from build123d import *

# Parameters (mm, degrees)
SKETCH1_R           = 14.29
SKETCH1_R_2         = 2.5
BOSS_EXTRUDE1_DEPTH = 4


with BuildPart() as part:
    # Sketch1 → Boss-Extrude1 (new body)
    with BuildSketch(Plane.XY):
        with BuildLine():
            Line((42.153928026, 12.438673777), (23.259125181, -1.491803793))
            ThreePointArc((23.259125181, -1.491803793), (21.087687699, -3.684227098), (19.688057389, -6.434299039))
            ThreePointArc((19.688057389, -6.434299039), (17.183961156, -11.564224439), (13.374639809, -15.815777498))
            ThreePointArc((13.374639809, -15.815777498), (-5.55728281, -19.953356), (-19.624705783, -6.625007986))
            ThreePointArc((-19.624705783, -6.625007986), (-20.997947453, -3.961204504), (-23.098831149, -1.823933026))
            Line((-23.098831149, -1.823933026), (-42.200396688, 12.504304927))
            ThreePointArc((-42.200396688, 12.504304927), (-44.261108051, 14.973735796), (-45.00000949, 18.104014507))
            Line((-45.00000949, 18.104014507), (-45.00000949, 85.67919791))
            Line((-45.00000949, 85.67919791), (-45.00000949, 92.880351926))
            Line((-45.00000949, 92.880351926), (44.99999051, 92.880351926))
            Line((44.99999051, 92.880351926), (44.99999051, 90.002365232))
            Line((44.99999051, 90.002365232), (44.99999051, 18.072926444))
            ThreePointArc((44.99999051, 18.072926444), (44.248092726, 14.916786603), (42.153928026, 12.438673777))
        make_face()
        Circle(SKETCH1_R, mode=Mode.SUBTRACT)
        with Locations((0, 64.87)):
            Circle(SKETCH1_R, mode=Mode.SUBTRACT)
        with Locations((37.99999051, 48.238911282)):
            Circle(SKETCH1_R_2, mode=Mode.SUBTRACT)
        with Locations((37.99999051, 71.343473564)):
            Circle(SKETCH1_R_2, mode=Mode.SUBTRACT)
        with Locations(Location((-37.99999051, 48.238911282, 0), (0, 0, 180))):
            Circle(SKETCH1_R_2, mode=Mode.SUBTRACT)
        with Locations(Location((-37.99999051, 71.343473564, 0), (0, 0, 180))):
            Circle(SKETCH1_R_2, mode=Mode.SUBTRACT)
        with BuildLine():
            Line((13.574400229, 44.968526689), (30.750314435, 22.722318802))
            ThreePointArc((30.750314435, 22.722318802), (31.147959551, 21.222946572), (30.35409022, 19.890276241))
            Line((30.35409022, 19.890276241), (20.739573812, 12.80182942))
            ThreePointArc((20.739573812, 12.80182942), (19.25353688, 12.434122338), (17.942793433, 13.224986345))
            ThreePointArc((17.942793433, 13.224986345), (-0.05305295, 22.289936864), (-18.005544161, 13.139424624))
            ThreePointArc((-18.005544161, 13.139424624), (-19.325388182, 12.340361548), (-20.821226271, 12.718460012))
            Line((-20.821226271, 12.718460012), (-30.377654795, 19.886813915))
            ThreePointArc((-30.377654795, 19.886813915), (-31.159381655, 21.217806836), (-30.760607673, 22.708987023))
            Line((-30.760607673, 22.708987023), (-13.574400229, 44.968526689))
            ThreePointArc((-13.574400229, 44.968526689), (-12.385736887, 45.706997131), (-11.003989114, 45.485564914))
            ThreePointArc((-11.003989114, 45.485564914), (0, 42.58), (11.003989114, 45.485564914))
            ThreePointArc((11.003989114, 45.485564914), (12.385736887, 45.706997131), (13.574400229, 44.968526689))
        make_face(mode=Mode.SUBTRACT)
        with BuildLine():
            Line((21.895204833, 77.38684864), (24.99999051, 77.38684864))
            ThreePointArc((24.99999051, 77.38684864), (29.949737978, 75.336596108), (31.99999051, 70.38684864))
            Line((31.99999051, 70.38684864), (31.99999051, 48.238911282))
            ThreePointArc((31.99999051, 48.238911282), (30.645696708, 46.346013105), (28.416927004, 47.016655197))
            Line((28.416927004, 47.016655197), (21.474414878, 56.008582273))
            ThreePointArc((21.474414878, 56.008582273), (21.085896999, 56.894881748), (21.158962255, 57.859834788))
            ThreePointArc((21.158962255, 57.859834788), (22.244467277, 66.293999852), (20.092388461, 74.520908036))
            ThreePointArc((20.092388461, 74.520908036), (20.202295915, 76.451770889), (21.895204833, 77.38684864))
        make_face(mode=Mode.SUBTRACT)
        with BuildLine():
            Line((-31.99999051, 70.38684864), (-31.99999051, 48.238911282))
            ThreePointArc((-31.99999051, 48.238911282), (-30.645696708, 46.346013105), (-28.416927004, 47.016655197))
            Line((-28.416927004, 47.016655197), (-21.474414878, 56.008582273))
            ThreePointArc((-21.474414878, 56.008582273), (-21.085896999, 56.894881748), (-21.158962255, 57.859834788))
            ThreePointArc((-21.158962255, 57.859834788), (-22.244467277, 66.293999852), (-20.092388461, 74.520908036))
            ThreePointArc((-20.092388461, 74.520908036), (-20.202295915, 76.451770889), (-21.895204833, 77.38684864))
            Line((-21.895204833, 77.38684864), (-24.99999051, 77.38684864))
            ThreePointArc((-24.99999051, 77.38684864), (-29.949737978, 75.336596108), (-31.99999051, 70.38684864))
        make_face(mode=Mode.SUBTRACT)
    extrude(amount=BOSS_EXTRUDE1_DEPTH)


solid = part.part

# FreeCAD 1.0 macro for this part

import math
import FreeCAD as App
import Part
import Sketcher
from FreeCAD import Vector
Q = App.Units.Quantity

doc = App.newDocument("Part")
body = doc.addObject("PartDesign::Body", "Body")

# Sketch on XY plane
sketch1 = doc.addObject("Sketcher::SketchObject", "Sketch")
body.addObject(sketch1)
sketch1.AttachmentSupport = (doc.XY_Plane, [""])
sketch1.MapMode = "FlatFace"
sketch1.addGeometry(Part.LineSegment(Vector(23.259125, -1.491804, 0), Vector(42.153928, 12.438674, 0)), False)
sketch1.addGeometry(Part.ArcOfCircle(Part.Circle(Vector(37.999991, 18.072926, 0), Vector(0, 0, 1), 7), math.radians(-53.599946), math.radians(0)), False)
sketch1.addGeometry(Part.LineSegment(Vector(44.999991, 18.072926, 0), Vector(44.999991, 92.880352, 0)), False)
sketch1.addGeometry(Part.LineSegment(Vector(44.999991, 92.880352, 0), Vector(-45.000009, 92.880352, 0)), False)
sketch1.addGeometry(Part.LineSegment(Vector(-45.000009, 92.880352, 0), Vector(-45.000009, 18.104015, 0)), False)
sketch1.addGeometry(Part.ArcOfCircle(Part.Circle(Vector(-38.000009, 18.104015, 0), Vector(0, 0, 1), 7), math.radians(180), math.radians(233.126141)), False)
sketch1.addGeometry(Part.LineSegment(Vector(-42.200397, 12.504305, 0), Vector(-23.098831, -1.823933, 0)), False)
sketch1.addGeometry(Part.ArcOfCircle(Part.Circle(Vector(-29.099384, -9.823518, 0), Vector(0, 0, 1), 10), math.radians(18.653915), math.radians(53.126141)), False)
sketch1.addGeometry(Part.ArcOfCircle(Part.Circle(Vector(0, 0, 0), Vector(0, 0, 1), 20.712793), math.radians(-161.346085), math.radians(-49.780411)), False)
sketch1.addGeometry(Part.ArcOfCircle(Part.Circle(Vector(0, 0, 0), Vector(0, 0, 1), 20.712793), math.radians(-49.780411), math.radians(-18.098028)), False)
sketch1.addGeometry(Part.ArcOfCircle(Part.Circle(Vector(29.193322, -9.540736, 0), Vector(0, 0, 1), 10), math.radians(126.400054), math.radians(161.901972)), False)
sketch1.addGeometry(Part.Circle(Vector(0, 0, 0), Vector(0, 0, 1), 14.29), False)
sketch1.addGeometry(Part.LineSegment(Vector(13.5744, 44.968527, 0), Vector(30.750314, 22.722319, 0)), False)
sketch1.addGeometry(Part.ArcOfCircle(Part.Circle(Vector(29.167251, 21.500063, 0), Vector(0, 0, 1), 2), math.radians(-53.599946), math.radians(37.671113)), False)
sketch1.addGeometry(Part.LineSegment(Vector(30.35409, 19.890276, 0), Vector(20.739574, 12.801829, 0)), False)
sketch1.addGeometry(Part.ArcOfCircle(Part.Circle(Vector(19.552735, 14.411616, 0), Vector(0, 0, 1), 2), math.radians(-143.607411), math.radians(-53.599946)), False)
sketch1.addGeometry(Part.ArcOfCircle(Part.Circle(Vector(0, 0, 0), Vector(0, 0, 1), 22.29), math.radians(36.392589), math.radians(143.880153)), False)
sketch1.addGeometry(Part.ArcOfCircle(Part.Circle(Vector(-19.621116, 14.318377, 0), Vector(0, 0, 1), 2), math.radians(-126.873859), math.radians(-36.119847)), False)
sketch1.addGeometry(Part.LineSegment(Vector(-20.821226, 12.71846, 0), Vector(-30.377655, 19.886814, 0)), False)
sketch1.addGeometry(Part.ArcOfCircle(Part.Circle(Vector(-29.177544, 21.486731, 0), Vector(0, 0, 1), 2), math.radians(142.328887), math.radians(233.126141)), False)
sketch1.addGeometry(Part.LineSegment(Vector(-30.760608, 22.708987, 0), Vector(-13.5744, 44.968527, 0)), False)
sketch1.addGeometry(Part.ArcOfCircle(Part.Circle(Vector(-11.991337, 43.746271, 0), Vector(0, 0, 1), 2), math.radians(60.417662), math.radians(142.328888)), False)
sketch1.addGeometry(Part.ArcOfCircle(Part.Circle(Vector(0, 64.87, 0), Vector(0, 0, 1), 22.29), math.radians(-119.582337), math.radians(-60.417663)), False)
sketch1.addGeometry(Part.ArcOfCircle(Part.Circle(Vector(11.991337, 43.746271, 0), Vector(0, 0, 1), 2), math.radians(37.671112), math.radians(119.582338)), False)
sketch1.addGeometry(Part.Circle(Vector(37.999991, 48.238911, 0), Vector(0, 0, 1), 2.5), False)
sketch1.addGeometry(Part.LineSegment(Vector(21.895205, 77.386849, 0), Vector(24.999991, 77.386849, 0)), False)
sketch1.addGeometry(Part.ArcOfCircle(Part.Circle(Vector(24.999991, 70.386849, 0), Vector(0, 0, 1), 7), math.radians(0), math.radians(90)), False)
sketch1.addGeometry(Part.LineSegment(Vector(31.999991, 70.386849, 0), Vector(31.999991, 48.238911, 0)), False)
sketch1.addGeometry(Part.ArcOfCircle(Part.Circle(Vector(29.999991, 48.238911, 0), Vector(0, 0, 1), 2), math.radians(-142.328887), math.radians(0)), False)
sketch1.addGeometry(Part.LineSegment(Vector(28.416927, 47.016655, 0), Vector(21.474415, 56.008582, 0)), False)
sketch1.addGeometry(Part.ArcOfCircle(Part.Circle(Vector(23.057478, 57.230838, 0), Vector(0, 0, 1), 2), math.radians(161.669476), math.radians(217.671113)), False)
sketch1.addGeometry(Part.ArcOfCircle(Part.Circle(Vector(0, 64.87, 0), Vector(0, 0, 1), 22.29), math.radians(-18.330524), math.radians(25.656211)), False)
sketch1.addGeometry(Part.ArcOfCircle(Part.Circle(Vector(21.895205, 75.386849, 0), Vector(0, 0, 1), 2), math.radians(90), math.radians(205.656211)), False)
sketch1.addGeometry(Part.Circle(Vector(37.999991, 71.343474, 0), Vector(0, 0, 1), 2.5), False)
sketch1.addGeometry(Part.Circle(Vector(0, 64.87, 0), Vector(0, 0, 1), 14.29), False)
sketch1.addGeometry(Part.Circle(Vector(-37.999991, 48.238911, 0), Vector(0, 0, 1), 2.5), False)
sketch1.addGeometry(Part.ArcOfCircle(Part.Circle(Vector(-24.999991, 70.386849, 0), Vector(0, 0, 1), 7), math.radians(90), math.radians(180)), False)
sketch1.addGeometry(Part.LineSegment(Vector(-24.999991, 77.386849, 0), Vector(-21.895205, 77.386849, 0)), False)
sketch1.addGeometry(Part.ArcOfCircle(Part.Circle(Vector(-21.895205, 75.386849, 0), Vector(0, 0, 1), 2), math.radians(-25.656211), math.radians(90)), False)
sketch1.addGeometry(Part.ArcOfCircle(Part.Circle(Vector(0, 64.87, 0), Vector(0, 0, 1), 22.29), math.radians(154.343789), math.radians(198.330524)), False)
sketch1.addGeometry(Part.ArcOfCircle(Part.Circle(Vector(-23.057478, 57.230838, 0), Vector(0, 0, 1), 2), math.radians(-37.671113), math.radians(18.330524)), False)
sketch1.addGeometry(Part.LineSegment(Vector(-21.474415, 56.008582, 0), Vector(-28.416927, 47.016655, 0)), False)
sketch1.addGeometry(Part.ArcOfCircle(Part.Circle(Vector(-29.999991, 48.238911, 0), Vector(0, 0, 1), 2), math.radians(180), math.radians(322.328887)), False)
sketch1.addGeometry(Part.LineSegment(Vector(-31.999991, 48.238911, 0), Vector(-31.999991, 70.386849, 0)), False)
sketch1.addGeometry(Part.Circle(Vector(-37.999991, 71.343474, 0), Vector(0, 0, 1), 2.5), False)
sketch1.addConstraint(Sketcher.Constraint("Coincident", 0, 2, 1, 1))
sketch1.addConstraint(Sketcher.Constraint("Coincident", 1, 2, 2, 1))
sketch1.addConstraint(Sketcher.Constraint("Coincident", 2, 2, 3, 1))
sketch1.addConstraint(Sketcher.Constraint("Coincident", 3, 2, 4, 1))
sketch1.addConstraint(Sketcher.Constraint("Coincident", 4, 2, 5, 1))
sketch1.addConstraint(Sketcher.Constraint("Coincident", 5, 2, 6, 1))
sketch1.addConstraint(Sketcher.Constraint("Coincident", 6, 2, 7, 2))
sketch1.addConstraint(Sketcher.Constraint("Coincident", 7, 1, 8, 1))
sketch1.addConstraint(Sketcher.Constraint("Coincident", 8, 2, 9, 1))
sketch1.addConstraint(Sketcher.Constraint("Coincident", 9, 2, 10, 2))
sketch1.addConstraint(Sketcher.Constraint("Coincident", 10, 1, 0, 1))
sketch1.addConstraint(Sketcher.Constraint("Coincident", 12, 2, 13, 2))
sketch1.addConstraint(Sketcher.Constraint("Coincident", 13, 1, 14, 1))
sketch1.addConstraint(Sketcher.Constraint("Coincident", 14, 2, 15, 2))
sketch1.addConstraint(Sketcher.Constraint("Coincident", 15, 1, 16, 1))
sketch1.addConstraint(Sketcher.Constraint("Coincident", 16, 2, 17, 2))
sketch1.addConstraint(Sketcher.Constraint("Coincident", 17, 1, 18, 1))
sketch1.addConstraint(Sketcher.Constraint("Coincident", 18, 2, 19, 2))
sketch1.addConstraint(Sketcher.Constraint("Coincident", 19, 1, 20, 1))
sketch1.addConstraint(Sketcher.Constraint("Coincident", 20, 2, 21, 2))
sketch1.addConstraint(Sketcher.Constraint("Coincident", 21, 1, 22, 1))
sketch1.addConstraint(Sketcher.Constraint("Coincident", 22, 2, 23, 2))
sketch1.addConstraint(Sketcher.Constraint("Coincident", 23, 1, 12, 1))
sketch1.addConstraint(Sketcher.Constraint("Coincident", 25, 2, 26, 2))
sketch1.addConstraint(Sketcher.Constraint("Coincident", 26, 1, 27, 1))
sketch1.addConstraint(Sketcher.Constraint("Coincident", 27, 2, 28, 2))
sketch1.addConstraint(Sketcher.Constraint("Coincident", 28, 1, 29, 1))
sketch1.addConstraint(Sketcher.Constraint("Coincident", 29, 2, 30, 2))
sketch1.addConstraint(Sketcher.Constraint("Coincident", 30, 1, 31, 1))
sketch1.addConstraint(Sketcher.Constraint("Coincident", 31, 2, 32, 2))
sketch1.addConstraint(Sketcher.Constraint("Coincident", 32, 1, 25, 1))
sketch1.addConstraint(Sketcher.Constraint("Coincident", 36, 1, 37, 1))
sketch1.addConstraint(Sketcher.Constraint("Coincident", 37, 2, 38, 2))
sketch1.addConstraint(Sketcher.Constraint("Coincident", 38, 1, 39, 1))
sketch1.addConstraint(Sketcher.Constraint("Coincident", 39, 2, 40, 2))
sketch1.addConstraint(Sketcher.Constraint("Coincident", 40, 1, 41, 1))
sketch1.addConstraint(Sketcher.Constraint("Coincident", 41, 2, 42, 2))
sketch1.addConstraint(Sketcher.Constraint("Coincident", 42, 1, 43, 1))
sketch1.addConstraint(Sketcher.Constraint("Coincident", 43, 2, 36, 2))
sketch1.addConstraint(Sketcher.Constraint("Vertical", 2))
sketch1.addConstraint(Sketcher.Constraint("Horizontal", 3))
sketch1.addConstraint(Sketcher.Constraint("Vertical", 4))
sketch1.addConstraint(Sketcher.Constraint("Horizontal", 25))
sketch1.addConstraint(Sketcher.Constraint("Vertical", 27))
sketch1.addConstraint(Sketcher.Constraint("Horizontal", 37))
sketch1.addConstraint(Sketcher.Constraint("Vertical", 43))
sketch1.addConstraint(Sketcher.Constraint("Coincident", 8, 3, -1, 1))
sketch1.addConstraint(Sketcher.Constraint("Coincident", 9, 3, -1, 1))
sketch1.addConstraint(Sketcher.Constraint("Coincident", 11, 3, -1, 1))
sketch1.addConstraint(Sketcher.Constraint("Coincident", 16, 3, -1, 1))
sketch1.addConstraint(Sketcher.Constraint("Coincident", 31, 3, 22, 3))
sketch1.addConstraint(Sketcher.Constraint("Coincident", 34, 3, 22, 3))
sketch1.addConstraint(Sketcher.Constraint("Coincident", 39, 3, 22, 3))
sketch1.addConstraint(Sketcher.Constraint("PointOnObject", 22, 3, -2))
sketch1.addConstraint(Sketcher.Constraint("Diameter", 24, Q("5 mm")))
sketch1.addConstraint(Sketcher.Constraint("Diameter", 33, Q("5 mm")))
sketch1.addConstraint(Sketcher.Constraint("Diameter", 35, Q("5 mm")))
sketch1.addConstraint(Sketcher.Constraint("Diameter", 44, Q("5 mm")))
sketch1.addConstraint(Sketcher.Constraint("Radius", 1, Q("7 mm")))
sketch1.addConstraint(Sketcher.Constraint("Radius", 5, Q("7 mm")))
sketch1.addConstraint(Sketcher.Constraint("Radius", 7, Q("10 mm")))
sketch1.addConstraint(Sketcher.Constraint("Radius", 10, Q("10 mm")))
sketch1.addConstraint(Sketcher.Constraint("Radius", 13, Q("2 mm")))
sketch1.addConstraint(Sketcher.Constraint("Radius", 15, Q("2 mm")))
sketch1.addConstraint(Sketcher.Constraint("Radius", 17, Q("2 mm")))
sketch1.addConstraint(Sketcher.Constraint("Radius", 19, Q("2 mm")))
sketch1.addConstraint(Sketcher.Constraint("Radius", 21, Q("2 mm")))
sketch1.addConstraint(Sketcher.Constraint("Radius", 23, Q("2 mm")))
sketch1.addConstraint(Sketcher.Constraint("Radius", 26, Q("7 mm")))
sketch1.addConstraint(Sketcher.Constraint("Radius", 28, Q("2 mm")))
sketch1.addConstraint(Sketcher.Constraint("Radius", 30, Q("2 mm")))
sketch1.addConstraint(Sketcher.Constraint("Radius", 32, Q("2 mm")))
sketch1.addConstraint(Sketcher.Constraint("Radius", 36, Q("7 mm")))
sketch1.addConstraint(Sketcher.Constraint("Radius", 38, Q("2 mm")))
sketch1.addConstraint(Sketcher.Constraint("Radius", 40, Q("2 mm")))
sketch1.addConstraint(Sketcher.Constraint("Radius", 42, Q("2 mm")))
sketch1.addConstraint(Sketcher.Constraint("Diameter", 11, Q("28.58 mm")))
sketch1.addConstraint(Sketcher.Constraint("Diameter", 34, Q("28.58 mm")))
sketch1.addConstraint(Sketcher.Constraint("DistanceX", 3, 2, 3, 1, Q("90 mm")))
sketch1.addConstraint(Sketcher.Constraint("Radius", 16, Q("22.29 mm")))
sketch1.addConstraint(Sketcher.Constraint("Radius", 22, Q("22.29 mm")))
sketch1.addConstraint(Sketcher.Constraint("Radius", 31, Q("22.29 mm")))
sketch1.addConstraint(Sketcher.Constraint("Radius", 39, Q("22.29 mm")))
sketch1.addConstraint(Sketcher.Constraint("DistanceY", -1, 1, 22, 3, Q("64.87 mm")))
sketch1.addConstraint(Sketcher.Constraint("Radius", 8, Q("20.712793 mm")))
sketch1.addConstraint(Sketcher.Constraint("DistanceY", 9, 2, -1, 1, Q("6.434299 mm")))
sketch1.addConstraint(Sketcher.Constraint("DistanceX", 20, 2, -1, 1, Q("13.5744 mm")))
sketch1.addConstraint(Sketcher.Constraint("DistanceX", -1, 1, 23, 1, Q("13.5744 mm")))
sketch1.addConstraint(Sketcher.Constraint("Distance", 0, Q("23.474918 mm")))
sketch1.addConstraint(Sketcher.Constraint("Distance", 29, Q("11.36016 mm")))
sketch1.addConstraint(Sketcher.Constraint("Distance", 41, Q("11.36016 mm")))
sketch1.addConstraint(Sketcher.Constraint("DistanceX", 25, 1, 25, 2, Q("3.104786 mm")))
sketch1.addConstraint(Sketcher.Constraint("DistanceX", 37, 1, 37, 2, Q("3.104786 mm")))
sketch1.addConstraint(Sketcher.Constraint("DistanceY", 2, 1, 2, 2, Q("74.807425 mm")))
sketch1.addConstraint(Sketcher.Constraint("DistanceY", 4, 2, 4, 1, Q("74.776337 mm")))
sketch1.addConstraint(Sketcher.Constraint("DistanceY", 27, 2, 27, 1, Q("22.147937 mm")))
sketch1.addConstraint(Sketcher.Constraint("DistanceY", 43, 1, 43, 2, Q("22.147937 mm")))
sketch1.addConstraint(Sketcher.Constraint("DistanceX", -1, 1, 1, 3, Q("37.999991 mm")))
sketch1.addConstraint(Sketcher.Constraint("DistanceY", 7, 3, -1, 1, Q("9.823518 mm")))
sketch1.addConstraint(Sketcher.Constraint("DistanceX", -1, 1, 10, 3, Q("29.193322 mm")))
sketch1.addConstraint(Sketcher.Constraint("DistanceX", -1, 1, 13, 3, Q("29.167251 mm")))
sketch1.addConstraint(Sketcher.Constraint("DistanceY", -1, 1, 19, 3, Q("21.486731 mm")))
sketch1.addConstraint(Sketcher.Constraint("DistanceY", -1, 1, 21, 3, Q("43.746271 mm")))
sketch1.addConstraint(Sketcher.Constraint("DistanceY", -1, 1, 23, 3, Q("43.746271 mm")))
sketch1.addConstraint(Sketcher.Constraint("DistanceX", -1, 1, 24, 3, Q("37.999991 mm")))
sketch1.addConstraint(Sketcher.Constraint("DistanceY", -1, 1, 24, 3, Q("48.238911 mm")))
sketch1.addConstraint(Sketcher.Constraint("DistanceX", -1, 1, 26, 3, Q("24.999991 mm")))
sketch1.addConstraint(Sketcher.Constraint("DistanceY", -1, 1, 26, 3, Q("70.386849 mm")))
sketch1.addConstraint(Sketcher.Constraint("DistanceY", -1, 1, 28, 3, Q("48.238911 mm")))
sketch1.addConstraint(Sketcher.Constraint("DistanceX", -1, 1, 30, 3, Q("23.057478 mm")))
sketch1.addConstraint(Sketcher.Constraint("DistanceX", -1, 1, 33, 3, Q("37.999991 mm")))
sketch1.addConstraint(Sketcher.Constraint("DistanceX", 35, 3, -1, 1, Q("37.999991 mm")))
sketch1.addConstraint(Sketcher.Constraint("DistanceY", -1, 1, 35, 3, Q("48.238911 mm")))
sketch1.addConstraint(Sketcher.Constraint("DistanceX", 36, 3, -1, 1, Q("24.999991 mm")))
sketch1.addConstraint(Sketcher.Constraint("DistanceY", -1, 1, 36, 3, Q("70.386849 mm")))
sketch1.addConstraint(Sketcher.Constraint("DistanceX", 40, 3, -1, 1, Q("23.057478 mm")))
sketch1.addConstraint(Sketcher.Constraint("DistanceY", -1, 1, 42, 3, Q("48.238911 mm")))
sketch1.addConstraint(Sketcher.Constraint("DistanceX", 44, 3, -1, 1, Q("37.999991 mm")))
sketch1.addConstraint(Sketcher.Constraint("DistanceX", -1, 1, 0, 2, Q("42.153928 mm")))
sketch1.addConstraint(Sketcher.Constraint("DistanceY", -1, 1, 2, 2, Q("92.880352 mm")))
sketch1.addConstraint(Sketcher.Constraint("DistanceX", 6, 2, -1, 1, Q("23.098831 mm")))
sketch1.addConstraint(Sketcher.Constraint("DistanceX", -1, 1, 8, 2, Q("13.37464 mm")))
sketch1.addConstraint(Sketcher.Constraint("DistanceY", -1, 1, 12, 2, Q("22.722319 mm")))
sketch1.addConstraint(Sketcher.Constraint("DistanceX", -1, 1, 13, 1, Q("30.35409 mm")))
sketch1.addConstraint(Sketcher.Constraint("DistanceY", -1, 1, 14, 2, Q("12.801829 mm")))
sketch1.addConstraint(Sketcher.Constraint("DistanceY", -1, 1, 17, 1, Q("12.71846 mm")))
sketch1.addConstraint(Sketcher.Constraint("DistanceX", 21, 1, -1, 1, Q("11.003989 mm")))
sketch1.addConstraint(Sketcher.Constraint("DistanceX", -1, 1, 22, 2, Q("11.003989 mm")))
sketch1.addConstraint(Sketcher.Constraint("DistanceX", -1, 1, 25, 2, Q("24.999991 mm")))
sketch1.addConstraint(Sketcher.Constraint("DistanceY", -1, 1, 26, 1, Q("70.386849 mm")))
sketch1.addConstraint(Sketcher.Constraint("DistanceX", -1, 1, 31, 2, Q("20.092388 mm")))
sketch1.addConstraint(Sketcher.Constraint("DistanceX", 36, 1, -1, 1, Q("24.999991 mm")))
sketch1.addConstraint(Sketcher.Constraint("DistanceX", 38, 1, -1, 1, Q("20.092388 mm")))
sketch1.addConstraint(Sketcher.Constraint("DistanceY", -1, 1, 42, 1, Q("48.238911 mm")))
sketch1.addConstraint(Sketcher.Constraint("Distance", 6, Q("23.878195 mm")))
sketch1.addConstraint(Sketcher.Constraint("Distance", 12, Q("28.105263 mm")))
sketch1.addConstraint(Sketcher.Constraint("Distance", 14, Q("11.945083 mm")))
sketch1.addConstraint(Sketcher.Constraint("Distance", 18, Q("11.946155 mm")))
sketch1.addConstraint(Sketcher.Constraint("Distance", 20, Q("28.122106 mm")))
sketch1.addConstraint(Sketcher.Constraint("DistanceY", -1, 1, 1, 3, Q("18.072926 mm")))
sketch1.addConstraint(Sketcher.Constraint("DistanceY", -1, 1, 5, 3, Q("18.104015 mm")))
sketch1.addConstraint(Sketcher.Constraint("DistanceX", 17, 3, -1, 1, Q("19.621116 mm")))
sketch1.addConstraint(Sketcher.Constraint("DistanceX", 19, 3, -1, 1, Q("29.177544 mm")))
sketch1.addConstraint(Sketcher.Constraint("DistanceY", -1, 1, 33, 3, Q("71.343474 mm")))
sketch1.addConstraint(Sketcher.Constraint("DistanceY", -1, 1, 44, 3, Q("71.343474 mm")))
sketch1.addConstraint(Sketcher.Constraint("DistanceX", 7, 1, -1, 1, Q("19.624706 mm")))
sketch1.addConstraint(Sketcher.Constraint("DistanceX", -1, 1, 15, 1, Q("17.942793 mm")))
sketch1.addConstraint(Sketcher.Constraint("DistanceX", 16, 2, -1, 1, Q("18.005544 mm")))
sketch1.addConstraint(Sketcher.Constraint("DistanceX", -1, 1, 28, 1, Q("28.416927 mm")))
sketch1.addConstraint(Sketcher.Constraint("DistanceX", -1, 1, 30, 1, Q("21.158962 mm")))
sketch1.addConstraint(Sketcher.Constraint("DistanceX", 39, 2, -1, 1, Q("21.158962 mm")))
sketch1.addConstraint(Sketcher.Constraint("DistanceX", 40, 1, -1, 1, Q("21.474415 mm")))
pad1 = doc.addObject("PartDesign::Pad", "Pad")
body.addObject(pad1)
pad1.Profile = sketch1
pad1.Length = 4

doc.recompute()
